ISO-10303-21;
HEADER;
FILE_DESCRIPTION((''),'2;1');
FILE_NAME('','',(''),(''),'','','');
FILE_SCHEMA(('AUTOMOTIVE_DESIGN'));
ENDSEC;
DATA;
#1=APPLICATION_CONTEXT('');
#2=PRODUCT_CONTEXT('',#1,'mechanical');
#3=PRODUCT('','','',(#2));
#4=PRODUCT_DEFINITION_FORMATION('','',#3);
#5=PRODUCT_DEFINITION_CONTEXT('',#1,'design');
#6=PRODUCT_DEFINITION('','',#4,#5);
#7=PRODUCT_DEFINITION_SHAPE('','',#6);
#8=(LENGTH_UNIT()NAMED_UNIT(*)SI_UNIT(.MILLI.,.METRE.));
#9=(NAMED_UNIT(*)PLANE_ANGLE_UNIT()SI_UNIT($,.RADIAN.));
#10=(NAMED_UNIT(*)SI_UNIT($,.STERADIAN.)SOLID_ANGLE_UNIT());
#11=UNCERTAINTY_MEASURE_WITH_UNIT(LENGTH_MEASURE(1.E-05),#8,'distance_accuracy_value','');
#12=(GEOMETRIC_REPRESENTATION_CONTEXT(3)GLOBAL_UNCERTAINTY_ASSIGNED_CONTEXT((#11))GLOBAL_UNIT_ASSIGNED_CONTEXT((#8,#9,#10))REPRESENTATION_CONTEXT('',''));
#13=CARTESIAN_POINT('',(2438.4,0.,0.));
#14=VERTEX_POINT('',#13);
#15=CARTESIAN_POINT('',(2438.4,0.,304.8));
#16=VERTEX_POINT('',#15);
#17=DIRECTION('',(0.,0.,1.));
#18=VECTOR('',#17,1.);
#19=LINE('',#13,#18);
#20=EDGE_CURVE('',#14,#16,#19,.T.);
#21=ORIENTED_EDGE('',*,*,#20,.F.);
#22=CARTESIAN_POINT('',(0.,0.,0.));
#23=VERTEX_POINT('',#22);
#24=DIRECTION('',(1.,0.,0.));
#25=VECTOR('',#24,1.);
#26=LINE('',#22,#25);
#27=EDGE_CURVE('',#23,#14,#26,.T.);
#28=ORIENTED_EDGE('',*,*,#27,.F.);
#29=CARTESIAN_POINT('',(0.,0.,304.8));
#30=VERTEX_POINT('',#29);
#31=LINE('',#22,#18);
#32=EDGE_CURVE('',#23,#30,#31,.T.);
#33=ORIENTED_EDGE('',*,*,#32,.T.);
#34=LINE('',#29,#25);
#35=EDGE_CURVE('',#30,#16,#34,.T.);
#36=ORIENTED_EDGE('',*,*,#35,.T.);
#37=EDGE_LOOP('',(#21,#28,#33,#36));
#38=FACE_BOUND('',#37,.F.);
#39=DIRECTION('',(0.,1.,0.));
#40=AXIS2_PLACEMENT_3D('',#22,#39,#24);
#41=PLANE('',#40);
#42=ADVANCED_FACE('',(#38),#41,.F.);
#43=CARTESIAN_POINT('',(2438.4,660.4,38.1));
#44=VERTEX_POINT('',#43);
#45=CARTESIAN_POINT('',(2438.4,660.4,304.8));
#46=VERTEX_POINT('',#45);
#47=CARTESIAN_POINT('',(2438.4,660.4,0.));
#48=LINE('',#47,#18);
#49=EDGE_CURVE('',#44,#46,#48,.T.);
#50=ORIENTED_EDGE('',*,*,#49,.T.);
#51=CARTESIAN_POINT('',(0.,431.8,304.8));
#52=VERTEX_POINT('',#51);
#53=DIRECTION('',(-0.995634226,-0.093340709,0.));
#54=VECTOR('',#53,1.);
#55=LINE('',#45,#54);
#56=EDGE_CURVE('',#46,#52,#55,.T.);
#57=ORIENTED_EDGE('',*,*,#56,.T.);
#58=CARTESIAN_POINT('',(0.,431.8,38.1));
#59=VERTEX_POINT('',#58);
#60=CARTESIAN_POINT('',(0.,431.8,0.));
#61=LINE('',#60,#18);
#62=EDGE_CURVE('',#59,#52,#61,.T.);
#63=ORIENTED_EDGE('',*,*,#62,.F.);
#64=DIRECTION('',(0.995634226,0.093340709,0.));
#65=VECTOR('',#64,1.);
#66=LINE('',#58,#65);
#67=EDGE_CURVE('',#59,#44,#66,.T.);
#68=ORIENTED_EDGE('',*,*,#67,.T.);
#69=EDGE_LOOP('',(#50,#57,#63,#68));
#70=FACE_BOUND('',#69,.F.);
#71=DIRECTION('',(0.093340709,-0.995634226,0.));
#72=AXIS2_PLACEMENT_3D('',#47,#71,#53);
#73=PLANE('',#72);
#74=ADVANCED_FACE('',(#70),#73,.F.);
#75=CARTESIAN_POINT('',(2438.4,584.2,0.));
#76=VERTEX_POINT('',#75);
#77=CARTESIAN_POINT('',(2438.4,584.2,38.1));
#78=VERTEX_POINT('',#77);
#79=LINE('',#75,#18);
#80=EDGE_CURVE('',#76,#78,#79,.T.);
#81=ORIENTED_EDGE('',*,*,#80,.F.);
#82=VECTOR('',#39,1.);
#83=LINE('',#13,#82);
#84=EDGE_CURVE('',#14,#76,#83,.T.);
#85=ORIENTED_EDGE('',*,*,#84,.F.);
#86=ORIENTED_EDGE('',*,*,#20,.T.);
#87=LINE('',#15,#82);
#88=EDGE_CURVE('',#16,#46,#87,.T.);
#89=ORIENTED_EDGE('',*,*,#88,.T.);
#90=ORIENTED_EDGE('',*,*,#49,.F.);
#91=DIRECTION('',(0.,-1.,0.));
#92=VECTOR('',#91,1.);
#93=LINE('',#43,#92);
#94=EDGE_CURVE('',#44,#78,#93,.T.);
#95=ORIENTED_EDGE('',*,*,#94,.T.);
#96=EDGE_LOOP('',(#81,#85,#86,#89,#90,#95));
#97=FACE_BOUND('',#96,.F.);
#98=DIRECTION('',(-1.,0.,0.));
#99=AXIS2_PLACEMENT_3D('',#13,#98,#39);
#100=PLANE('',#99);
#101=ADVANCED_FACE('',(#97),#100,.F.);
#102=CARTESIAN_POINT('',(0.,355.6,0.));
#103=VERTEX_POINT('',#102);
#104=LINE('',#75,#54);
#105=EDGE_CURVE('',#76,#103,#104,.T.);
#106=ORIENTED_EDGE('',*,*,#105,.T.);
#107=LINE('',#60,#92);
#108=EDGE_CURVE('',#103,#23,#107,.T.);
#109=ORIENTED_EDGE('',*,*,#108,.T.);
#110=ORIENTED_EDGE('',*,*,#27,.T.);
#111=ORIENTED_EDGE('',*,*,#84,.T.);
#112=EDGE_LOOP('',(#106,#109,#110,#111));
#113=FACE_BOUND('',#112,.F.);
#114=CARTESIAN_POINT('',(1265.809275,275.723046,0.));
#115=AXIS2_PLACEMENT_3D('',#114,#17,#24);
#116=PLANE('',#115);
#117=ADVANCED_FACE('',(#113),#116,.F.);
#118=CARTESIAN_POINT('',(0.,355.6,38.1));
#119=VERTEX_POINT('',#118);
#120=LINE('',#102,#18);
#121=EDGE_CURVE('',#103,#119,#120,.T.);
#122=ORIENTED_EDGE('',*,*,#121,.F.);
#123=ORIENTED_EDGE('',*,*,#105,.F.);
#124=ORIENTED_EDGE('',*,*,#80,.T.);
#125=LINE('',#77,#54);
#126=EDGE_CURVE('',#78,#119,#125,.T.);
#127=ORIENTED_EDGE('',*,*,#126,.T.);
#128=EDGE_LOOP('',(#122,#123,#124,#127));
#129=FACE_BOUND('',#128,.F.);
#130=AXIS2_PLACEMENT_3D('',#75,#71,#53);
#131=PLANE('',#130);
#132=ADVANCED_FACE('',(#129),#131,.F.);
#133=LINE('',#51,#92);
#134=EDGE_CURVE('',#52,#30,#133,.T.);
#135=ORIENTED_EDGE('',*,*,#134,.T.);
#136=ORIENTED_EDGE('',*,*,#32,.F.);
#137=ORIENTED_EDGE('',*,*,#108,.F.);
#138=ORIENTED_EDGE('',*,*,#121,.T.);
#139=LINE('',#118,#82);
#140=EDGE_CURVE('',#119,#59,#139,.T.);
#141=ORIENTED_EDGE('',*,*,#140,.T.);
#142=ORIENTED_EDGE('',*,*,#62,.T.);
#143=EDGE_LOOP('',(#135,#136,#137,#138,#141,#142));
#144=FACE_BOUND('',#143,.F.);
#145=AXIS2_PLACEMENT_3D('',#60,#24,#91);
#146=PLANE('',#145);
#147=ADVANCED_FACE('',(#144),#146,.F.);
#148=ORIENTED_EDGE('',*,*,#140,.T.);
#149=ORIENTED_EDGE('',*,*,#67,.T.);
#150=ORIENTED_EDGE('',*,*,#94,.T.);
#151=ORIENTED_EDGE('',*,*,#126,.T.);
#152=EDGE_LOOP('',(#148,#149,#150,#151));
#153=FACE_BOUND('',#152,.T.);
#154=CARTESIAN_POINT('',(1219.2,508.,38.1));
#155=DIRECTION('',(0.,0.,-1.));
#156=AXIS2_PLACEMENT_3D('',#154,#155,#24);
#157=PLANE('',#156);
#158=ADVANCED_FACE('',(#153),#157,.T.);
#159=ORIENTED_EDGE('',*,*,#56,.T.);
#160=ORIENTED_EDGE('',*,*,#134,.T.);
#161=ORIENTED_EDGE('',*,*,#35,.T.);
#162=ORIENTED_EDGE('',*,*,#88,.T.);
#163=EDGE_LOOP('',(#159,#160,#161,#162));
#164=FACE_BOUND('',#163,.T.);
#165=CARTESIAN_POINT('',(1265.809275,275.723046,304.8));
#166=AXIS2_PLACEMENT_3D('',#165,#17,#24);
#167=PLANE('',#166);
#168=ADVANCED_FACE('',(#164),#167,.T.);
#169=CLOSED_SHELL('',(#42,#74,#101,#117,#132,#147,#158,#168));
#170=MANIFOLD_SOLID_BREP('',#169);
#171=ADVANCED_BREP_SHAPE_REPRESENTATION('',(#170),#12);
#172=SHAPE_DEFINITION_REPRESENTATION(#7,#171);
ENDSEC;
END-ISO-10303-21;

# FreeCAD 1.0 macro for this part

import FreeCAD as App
import Part
import Sketcher

V = App.Vector
Q = App.Units.Quantity

doc = App.newDocument("Part")
body = doc.addObject("PartDesign::Body", "Body")

# Sketch on XY plane
sketch1 = body.newObject("Sketcher::SketchObject", "Sketch")
sketch1.AttachmentSupport = (doc.getObject("XY_Plane"), [""])
sketch1.MapMode = "FlatFace"
sketch1.addGeometry([
    Part.LineSegment(V(0, 431.8, 0), V(0, 0, 0)),
    Part.LineSegment(V(0, 0, 0), V(2438.4, 0, 0)),
    Part.LineSegment(V(2438.4, 0, 0), V(2438.4, 660.4, 0)),
    Part.LineSegment(V(2438.4, 660.4, 0), V(0, 431.8, 0)),
], False)
sketch1.addConstraint([
    Sketcher.Constraint("Coincident", 0, 2, 1, 1),
    Sketcher.Constraint("Coincident", 1, 2, 2, 1),
    Sketcher.Constraint("Coincident", 2, 2, 3, 1),
    Sketcher.Constraint("Coincident", 3, 2, 0, 1),
    Sketcher.Constraint("Vertical", 0),
    Sketcher.Constraint("Horizontal", 1),
    Sketcher.Constraint("Vertical", 2),
    Sketcher.Constraint("Coincident", 0, 2, -1, 1),
    Sketcher.Constraint("DistanceX", 1, 1, 1, 2, Q("96 in")),
    Sketcher.Constraint("DistanceY", 0, 2, 0, 1, Q("17 in")),
    Sketcher.Constraint("DistanceY", 2, 1, 2, 2, Q("26 in")),
])
pad1 = body.newObject("PartDesign::Pad", "Pad")
pad1.Profile = sketch1
pad1.Length = Q("12 in")

# Sketch on XY plane
sketch2 = body.newObject("Sketcher::SketchObject", "Sketch001")
sketch2.AttachmentSupport = (doc.getObject("XY_Plane"), [""])
sketch2.MapMode = "FlatFace"
sketch2.addGeometry([
    Part.LineSegment(V(0, 431.8, 0), V(2438.4, 660.4, 0)),
    Part.LineSegment(V(2438.4, 660.4, 0), V(2438.4, 584.2, 0)),
    Part.LineSegment(V(2438.4, 584.2, 0), V(0, 355.6, 0)),
    Part.LineSegment(V(0, 355.6, 0), V(0, 431.8, 0)),
], False)
sketch2.addConstraint([
    Sketcher.Constraint("Coincident", 0, 2, 1, 1),
    Sketcher.Constraint("Coincident", 1, 2, 2, 1),
    Sketcher.Constraint("Coincident", 2, 2, 3, 1),
    Sketcher.Constraint("Coincident", 3, 2, 0, 1),
    Sketcher.Constraint("Vertical", 1),
    Sketcher.Constraint("Vertical", 3),
    Sketcher.Constraint("PointOnObject", 2, 2, -2),
    Sketcher.Constraint("Parallel", 0, 2),
    Sketcher.Constraint("DistanceY", 1, 2, 1, 1, Q("3 in")),
    Sketcher.Constraint("DistanceX", -1, 1, 0, 2, Q("96 in")),
    Sketcher.Constraint("DistanceY", -1, 1, 0, 2, Q("26 in")),
    Sketcher.Constraint("DistanceY", -1, 1, 2, 2, Q("14 in")),
])
pocket1 = body.newObject("PartDesign::Pocket", "Pocket")
pocket1.Profile = sketch2
pocket1.Length = Q("1.5 in")
pocket1.Reversed = True

doc.recompute()
